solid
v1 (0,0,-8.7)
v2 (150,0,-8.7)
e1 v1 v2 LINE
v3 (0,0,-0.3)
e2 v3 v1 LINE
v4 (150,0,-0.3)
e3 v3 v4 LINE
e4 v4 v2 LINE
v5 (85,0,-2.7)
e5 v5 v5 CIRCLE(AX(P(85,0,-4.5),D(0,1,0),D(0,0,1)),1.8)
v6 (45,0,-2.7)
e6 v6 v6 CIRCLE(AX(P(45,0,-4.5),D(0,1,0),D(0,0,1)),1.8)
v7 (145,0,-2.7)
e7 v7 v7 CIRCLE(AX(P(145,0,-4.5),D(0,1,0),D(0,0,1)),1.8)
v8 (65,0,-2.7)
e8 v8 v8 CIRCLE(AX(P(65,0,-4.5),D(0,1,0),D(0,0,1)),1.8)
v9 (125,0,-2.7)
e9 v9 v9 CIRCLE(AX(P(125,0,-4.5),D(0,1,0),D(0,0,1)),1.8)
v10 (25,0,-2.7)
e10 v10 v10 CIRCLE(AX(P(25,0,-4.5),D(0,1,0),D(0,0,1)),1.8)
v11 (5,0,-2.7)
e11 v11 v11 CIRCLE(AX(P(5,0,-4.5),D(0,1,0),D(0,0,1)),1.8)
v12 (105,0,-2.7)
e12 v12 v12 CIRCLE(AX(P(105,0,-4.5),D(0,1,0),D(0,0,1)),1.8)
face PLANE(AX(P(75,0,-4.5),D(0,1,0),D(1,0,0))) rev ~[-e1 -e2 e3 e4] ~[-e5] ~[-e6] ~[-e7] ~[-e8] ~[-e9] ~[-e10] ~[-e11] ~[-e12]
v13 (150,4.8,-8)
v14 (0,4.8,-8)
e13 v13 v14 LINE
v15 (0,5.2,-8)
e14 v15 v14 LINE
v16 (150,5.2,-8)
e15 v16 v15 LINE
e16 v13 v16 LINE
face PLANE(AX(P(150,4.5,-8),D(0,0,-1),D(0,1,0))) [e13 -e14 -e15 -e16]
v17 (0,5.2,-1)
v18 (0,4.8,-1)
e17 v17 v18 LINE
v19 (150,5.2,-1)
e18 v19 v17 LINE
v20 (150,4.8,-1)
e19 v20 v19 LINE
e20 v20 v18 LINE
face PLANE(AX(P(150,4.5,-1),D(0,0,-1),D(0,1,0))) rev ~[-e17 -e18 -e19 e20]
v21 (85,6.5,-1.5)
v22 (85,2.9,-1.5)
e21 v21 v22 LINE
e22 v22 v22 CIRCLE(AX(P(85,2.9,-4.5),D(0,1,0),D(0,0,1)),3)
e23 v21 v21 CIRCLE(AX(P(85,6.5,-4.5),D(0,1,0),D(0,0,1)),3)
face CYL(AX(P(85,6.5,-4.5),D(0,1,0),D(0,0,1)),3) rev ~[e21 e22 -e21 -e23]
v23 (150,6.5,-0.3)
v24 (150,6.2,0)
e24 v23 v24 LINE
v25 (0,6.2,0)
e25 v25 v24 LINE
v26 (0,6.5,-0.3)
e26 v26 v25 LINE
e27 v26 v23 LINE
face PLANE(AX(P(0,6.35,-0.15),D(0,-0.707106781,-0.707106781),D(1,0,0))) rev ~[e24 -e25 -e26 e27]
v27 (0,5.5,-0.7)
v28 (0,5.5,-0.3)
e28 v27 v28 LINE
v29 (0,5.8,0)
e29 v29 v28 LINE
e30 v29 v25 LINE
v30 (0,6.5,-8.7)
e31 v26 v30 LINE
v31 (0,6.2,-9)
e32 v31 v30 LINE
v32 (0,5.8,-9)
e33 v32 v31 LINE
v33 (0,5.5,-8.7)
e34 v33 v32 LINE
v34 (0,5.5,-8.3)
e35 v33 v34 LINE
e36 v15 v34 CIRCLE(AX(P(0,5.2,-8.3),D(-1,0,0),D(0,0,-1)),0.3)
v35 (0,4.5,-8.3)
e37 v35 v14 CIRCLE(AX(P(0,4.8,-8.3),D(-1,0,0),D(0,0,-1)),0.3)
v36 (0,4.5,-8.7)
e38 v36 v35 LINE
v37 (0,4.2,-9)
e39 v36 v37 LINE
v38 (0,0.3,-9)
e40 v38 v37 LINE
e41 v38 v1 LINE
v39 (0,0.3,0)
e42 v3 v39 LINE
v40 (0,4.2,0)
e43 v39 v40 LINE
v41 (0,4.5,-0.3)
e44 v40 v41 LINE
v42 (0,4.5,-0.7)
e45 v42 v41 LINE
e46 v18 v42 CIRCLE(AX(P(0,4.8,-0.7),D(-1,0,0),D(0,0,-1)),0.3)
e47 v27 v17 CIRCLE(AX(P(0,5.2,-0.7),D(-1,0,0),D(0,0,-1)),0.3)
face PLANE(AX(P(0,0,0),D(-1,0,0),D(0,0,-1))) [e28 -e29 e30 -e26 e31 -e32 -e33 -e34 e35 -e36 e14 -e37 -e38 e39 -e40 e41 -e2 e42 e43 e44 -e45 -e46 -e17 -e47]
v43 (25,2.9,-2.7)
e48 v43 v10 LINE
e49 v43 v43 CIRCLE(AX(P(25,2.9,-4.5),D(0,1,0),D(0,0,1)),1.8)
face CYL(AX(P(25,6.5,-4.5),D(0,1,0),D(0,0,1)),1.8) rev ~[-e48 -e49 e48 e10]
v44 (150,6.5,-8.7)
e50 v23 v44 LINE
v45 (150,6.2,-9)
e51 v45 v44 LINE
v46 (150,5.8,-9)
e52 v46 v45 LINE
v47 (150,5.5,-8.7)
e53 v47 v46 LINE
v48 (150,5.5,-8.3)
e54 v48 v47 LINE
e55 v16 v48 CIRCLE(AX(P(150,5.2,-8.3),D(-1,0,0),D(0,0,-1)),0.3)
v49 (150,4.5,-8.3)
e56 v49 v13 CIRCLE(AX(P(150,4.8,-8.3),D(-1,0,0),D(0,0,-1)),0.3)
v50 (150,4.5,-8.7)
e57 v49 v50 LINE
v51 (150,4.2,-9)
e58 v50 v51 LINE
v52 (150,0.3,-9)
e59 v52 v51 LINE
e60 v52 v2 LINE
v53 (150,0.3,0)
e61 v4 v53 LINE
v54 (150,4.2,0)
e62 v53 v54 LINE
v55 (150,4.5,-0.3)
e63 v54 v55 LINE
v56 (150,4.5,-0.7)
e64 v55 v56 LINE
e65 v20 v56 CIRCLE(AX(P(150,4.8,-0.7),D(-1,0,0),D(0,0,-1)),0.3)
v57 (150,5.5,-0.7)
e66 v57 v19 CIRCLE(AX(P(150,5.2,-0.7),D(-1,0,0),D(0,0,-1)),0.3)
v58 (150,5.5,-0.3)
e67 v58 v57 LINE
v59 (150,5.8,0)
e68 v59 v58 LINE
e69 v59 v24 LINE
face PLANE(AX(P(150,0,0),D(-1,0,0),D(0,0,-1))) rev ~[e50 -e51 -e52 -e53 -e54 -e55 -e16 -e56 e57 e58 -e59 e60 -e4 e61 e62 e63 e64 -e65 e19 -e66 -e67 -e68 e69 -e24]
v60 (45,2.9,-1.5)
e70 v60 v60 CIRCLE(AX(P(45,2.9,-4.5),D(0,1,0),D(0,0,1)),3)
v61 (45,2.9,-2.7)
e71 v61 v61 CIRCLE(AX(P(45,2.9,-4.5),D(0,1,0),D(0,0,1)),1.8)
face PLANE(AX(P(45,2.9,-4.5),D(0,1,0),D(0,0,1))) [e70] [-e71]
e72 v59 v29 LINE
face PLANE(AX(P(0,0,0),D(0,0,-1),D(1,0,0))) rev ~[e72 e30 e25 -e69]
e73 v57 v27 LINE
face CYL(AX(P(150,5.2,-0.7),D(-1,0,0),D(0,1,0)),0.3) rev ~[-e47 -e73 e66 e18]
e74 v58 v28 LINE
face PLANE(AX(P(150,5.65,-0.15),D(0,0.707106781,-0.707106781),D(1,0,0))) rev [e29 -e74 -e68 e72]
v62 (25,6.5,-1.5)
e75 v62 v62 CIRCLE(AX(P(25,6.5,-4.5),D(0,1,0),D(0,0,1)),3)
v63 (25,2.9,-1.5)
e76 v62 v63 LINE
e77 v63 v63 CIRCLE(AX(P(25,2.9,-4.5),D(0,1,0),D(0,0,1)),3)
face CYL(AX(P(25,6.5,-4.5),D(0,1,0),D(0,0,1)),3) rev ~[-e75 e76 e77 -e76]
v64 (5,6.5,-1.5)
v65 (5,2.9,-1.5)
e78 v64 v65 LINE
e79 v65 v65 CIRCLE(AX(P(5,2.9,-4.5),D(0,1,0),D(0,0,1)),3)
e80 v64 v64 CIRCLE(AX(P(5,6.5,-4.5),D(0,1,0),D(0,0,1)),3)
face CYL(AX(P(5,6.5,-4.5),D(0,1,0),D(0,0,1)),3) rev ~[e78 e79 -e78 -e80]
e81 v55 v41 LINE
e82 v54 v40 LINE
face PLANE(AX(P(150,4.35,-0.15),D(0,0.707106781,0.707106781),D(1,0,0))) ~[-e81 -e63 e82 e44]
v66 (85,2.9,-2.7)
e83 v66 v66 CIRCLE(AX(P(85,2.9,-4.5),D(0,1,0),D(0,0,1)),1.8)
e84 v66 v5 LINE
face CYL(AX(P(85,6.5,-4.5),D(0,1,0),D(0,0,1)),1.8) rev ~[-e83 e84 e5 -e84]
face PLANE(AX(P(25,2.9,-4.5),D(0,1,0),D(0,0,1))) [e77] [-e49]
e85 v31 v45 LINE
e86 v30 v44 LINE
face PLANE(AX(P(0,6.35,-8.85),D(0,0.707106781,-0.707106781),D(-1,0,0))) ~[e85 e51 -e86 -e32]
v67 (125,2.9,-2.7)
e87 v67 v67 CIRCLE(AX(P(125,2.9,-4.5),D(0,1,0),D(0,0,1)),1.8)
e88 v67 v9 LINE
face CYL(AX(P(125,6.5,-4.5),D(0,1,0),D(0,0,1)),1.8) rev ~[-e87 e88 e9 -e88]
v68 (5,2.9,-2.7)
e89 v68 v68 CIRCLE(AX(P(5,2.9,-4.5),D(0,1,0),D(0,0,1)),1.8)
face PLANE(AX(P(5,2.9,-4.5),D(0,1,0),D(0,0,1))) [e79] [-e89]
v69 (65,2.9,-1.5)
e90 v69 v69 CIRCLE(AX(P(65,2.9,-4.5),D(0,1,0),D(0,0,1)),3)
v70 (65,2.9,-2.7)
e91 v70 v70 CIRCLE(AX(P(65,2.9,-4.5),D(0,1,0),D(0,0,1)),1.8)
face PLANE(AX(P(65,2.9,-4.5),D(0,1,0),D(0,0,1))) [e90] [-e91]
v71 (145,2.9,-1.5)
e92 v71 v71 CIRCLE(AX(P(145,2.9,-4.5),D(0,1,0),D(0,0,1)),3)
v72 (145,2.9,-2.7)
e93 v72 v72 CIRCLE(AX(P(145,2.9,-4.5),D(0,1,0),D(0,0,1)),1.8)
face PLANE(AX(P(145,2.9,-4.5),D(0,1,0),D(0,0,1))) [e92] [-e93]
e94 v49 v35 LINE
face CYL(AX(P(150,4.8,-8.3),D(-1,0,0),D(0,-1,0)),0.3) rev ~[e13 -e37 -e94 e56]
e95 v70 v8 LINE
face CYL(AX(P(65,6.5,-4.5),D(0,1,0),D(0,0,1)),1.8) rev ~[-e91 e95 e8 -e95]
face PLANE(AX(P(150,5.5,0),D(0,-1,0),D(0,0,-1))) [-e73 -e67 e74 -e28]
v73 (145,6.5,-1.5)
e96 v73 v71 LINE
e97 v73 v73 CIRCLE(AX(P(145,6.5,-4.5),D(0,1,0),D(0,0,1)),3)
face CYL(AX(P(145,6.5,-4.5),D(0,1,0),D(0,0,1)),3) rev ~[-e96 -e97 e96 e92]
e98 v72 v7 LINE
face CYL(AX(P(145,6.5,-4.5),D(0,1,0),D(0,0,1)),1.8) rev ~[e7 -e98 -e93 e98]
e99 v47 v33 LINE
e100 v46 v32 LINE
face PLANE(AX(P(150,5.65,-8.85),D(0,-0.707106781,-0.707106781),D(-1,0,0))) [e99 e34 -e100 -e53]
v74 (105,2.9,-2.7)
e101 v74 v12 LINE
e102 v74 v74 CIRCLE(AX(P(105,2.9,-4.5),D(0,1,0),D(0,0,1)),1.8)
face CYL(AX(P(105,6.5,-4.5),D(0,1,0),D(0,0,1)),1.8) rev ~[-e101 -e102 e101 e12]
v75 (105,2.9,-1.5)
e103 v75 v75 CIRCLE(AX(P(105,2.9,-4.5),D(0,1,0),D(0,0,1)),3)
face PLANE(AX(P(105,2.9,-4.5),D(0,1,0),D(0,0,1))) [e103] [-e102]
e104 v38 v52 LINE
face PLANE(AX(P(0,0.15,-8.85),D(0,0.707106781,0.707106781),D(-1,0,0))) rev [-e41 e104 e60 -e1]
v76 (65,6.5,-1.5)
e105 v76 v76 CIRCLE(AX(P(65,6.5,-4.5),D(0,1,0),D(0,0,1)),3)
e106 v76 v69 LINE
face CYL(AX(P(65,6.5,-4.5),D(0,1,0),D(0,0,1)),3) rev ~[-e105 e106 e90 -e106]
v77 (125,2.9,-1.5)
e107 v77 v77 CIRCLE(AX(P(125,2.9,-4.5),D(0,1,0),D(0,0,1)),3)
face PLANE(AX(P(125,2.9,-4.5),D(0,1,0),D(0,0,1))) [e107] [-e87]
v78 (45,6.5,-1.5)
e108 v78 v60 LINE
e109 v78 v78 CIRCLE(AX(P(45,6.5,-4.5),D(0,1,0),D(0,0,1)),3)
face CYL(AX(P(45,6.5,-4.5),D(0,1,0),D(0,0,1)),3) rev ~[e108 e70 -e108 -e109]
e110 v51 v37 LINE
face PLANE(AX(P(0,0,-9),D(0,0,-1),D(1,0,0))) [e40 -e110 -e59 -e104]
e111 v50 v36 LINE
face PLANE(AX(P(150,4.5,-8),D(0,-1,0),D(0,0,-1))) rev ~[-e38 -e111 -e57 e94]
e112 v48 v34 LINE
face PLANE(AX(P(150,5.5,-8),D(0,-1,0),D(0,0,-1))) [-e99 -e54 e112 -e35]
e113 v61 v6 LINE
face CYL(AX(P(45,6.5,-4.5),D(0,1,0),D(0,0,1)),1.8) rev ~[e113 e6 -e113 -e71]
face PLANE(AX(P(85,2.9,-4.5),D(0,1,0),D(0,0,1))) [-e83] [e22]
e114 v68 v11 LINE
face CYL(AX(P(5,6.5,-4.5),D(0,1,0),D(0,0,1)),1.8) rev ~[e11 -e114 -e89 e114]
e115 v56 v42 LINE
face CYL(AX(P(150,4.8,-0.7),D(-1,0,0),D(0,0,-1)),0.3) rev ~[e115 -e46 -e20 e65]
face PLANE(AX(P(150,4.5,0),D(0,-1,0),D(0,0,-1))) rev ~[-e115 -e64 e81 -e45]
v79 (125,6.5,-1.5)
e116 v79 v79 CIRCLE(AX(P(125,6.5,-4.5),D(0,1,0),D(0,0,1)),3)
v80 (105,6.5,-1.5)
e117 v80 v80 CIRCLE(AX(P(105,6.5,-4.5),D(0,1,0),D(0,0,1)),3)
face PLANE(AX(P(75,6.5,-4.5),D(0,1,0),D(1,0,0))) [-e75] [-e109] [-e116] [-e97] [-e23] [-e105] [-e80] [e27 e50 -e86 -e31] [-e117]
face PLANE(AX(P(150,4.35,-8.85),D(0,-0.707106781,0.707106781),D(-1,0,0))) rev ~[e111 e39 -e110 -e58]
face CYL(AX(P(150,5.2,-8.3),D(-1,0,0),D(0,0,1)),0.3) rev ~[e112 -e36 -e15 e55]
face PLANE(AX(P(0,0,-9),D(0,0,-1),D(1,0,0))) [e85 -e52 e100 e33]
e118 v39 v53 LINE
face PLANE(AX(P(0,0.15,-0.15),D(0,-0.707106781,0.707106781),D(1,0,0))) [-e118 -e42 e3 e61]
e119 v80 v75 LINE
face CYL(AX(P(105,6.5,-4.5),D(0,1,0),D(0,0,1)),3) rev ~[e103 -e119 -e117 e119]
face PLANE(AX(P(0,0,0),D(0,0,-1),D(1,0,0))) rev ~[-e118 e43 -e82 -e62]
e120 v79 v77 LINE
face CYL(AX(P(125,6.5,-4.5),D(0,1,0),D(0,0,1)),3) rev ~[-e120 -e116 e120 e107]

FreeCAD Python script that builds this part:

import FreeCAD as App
import Part
import Sketcher
Q = App.Units.Quantity


def edges_at(feature, points):
    """Names of the edges that pass closest to the given points."""
    edges = feature.Shape.Edges
    near = lambda p: min(range(len(edges)), key=lambda i: edges[i].distToShape(Part.Vertex(*p))[0])
    return sorted({f"Edge{near(p) + 1}" for p in points})


def add_polygon(sketch, points):
    """Adds a closed chain of lines whose ends are joined by coincident constraints."""
    first, n = sketch.GeometryCount, len(points)
    for a, b in zip(points, points[1:] + points[:1]):
        sketch.addGeometry(Part.LineSegment(App.Vector(*a, 0), App.Vector(*b, 0)), False)
    for i in range(n):
        sketch.addConstraint(Sketcher.Constraint("Coincident", first + i, 2, first + (i + 1) % n, 1))

doc = App.newDocument("Part")
params = doc.addObject("Spreadsheet::Sheet", "Params")
for row, (alias, value) in enumerate([
    ("sketch1_width", "150 mm"),
    ("sketch1_height", "9 mm"),
    ("pad1_length", "6.5 mm"),
    ("sketch2_width", "1 mm"),
    ("pocket1_length", "156.5 mm"),
    ("sketch3_diameter", "3.6 mm"),
    ("pocket2_length", "9.5 mm"),
    ("sketch4_diameter", "6 mm"),
    ("pocket3_length", "3.6 mm"),
    ("fillet_radius", "0.3 mm"),
    ("chamfer_size", "0.3 mm"),
], start=1):
    params.set(f"A{row}", alias)
    params.set(f"B{row}", "=" + value)
    params.setAlias(f"B{row}", alias)

body = doc.addObject("PartDesign::Body", "Body")

# Sketch on XZ plane
sketch1 = body.newObject("Sketcher::SketchObject", "Sketch")
sketch1.AttachmentSupport = (doc.getObject("XZ_Plane"), [""])
sketch1.MapMode = "FlatFace"
add_polygon(sketch1, [(0, -9), (0, 0), (150, 0), (150, -9)])  # lines 0-3
sketch1.addConstraint(Sketcher.Constraint("Vertical", 0))
sketch1.addConstraint(Sketcher.Constraint("Horizontal", 1))
sketch1.addConstraint(Sketcher.Constraint("Vertical", 2))
sketch1.addConstraint(Sketcher.Constraint("Horizontal", 3))
sketch1.addConstraint(Sketcher.Constraint("Coincident", 0, 2, -1, 1))
sketch1.addConstraint(Sketcher.Constraint("DistanceX", 1, 1, 1, 2, Q("150 mm")))
sketch1.addConstraint(Sketcher.Constraint("DistanceY", 0, 1, 0, 2, Q("9 mm")))
sketch1.setExpression("Constraints[9]", "Params.sketch1_width")
sketch1.setExpression("Constraints[10]", "Params.sketch1_height")
pad1 = body.newObject("PartDesign::Pad", "Pad")
pad1.Profile = sketch1
pad1.setExpression("Length", "Params.pad1_length")
pad1.Reversed = True

# Sketch on YZ plane
sketch2 = body.newObject("Sketcher::SketchObject", "Sketch001")
sketch2.AttachmentSupport = (doc.getObject("YZ_Plane"), [""])
sketch2.MapMode = "FlatFace"
sketch2.AttachmentOffset = App.Placement(App.Vector(0, 0, 150), App.Rotation())
add_polygon(sketch2, [(5.5, 0), (4.5, 0), (4.5, -1), (5.5, -1)])  # lines 0-3
add_polygon(sketch2, [(5.5, -8), (4.5, -8), (4.5, -9), (5.5, -9)])  # lines 4-7
sketch2.addConstraint(Sketcher.Constraint("Horizontal", 0))
sketch2.addConstraint(Sketcher.Constraint("Vertical", 1))
sketch2.addConstraint(Sketcher.Constraint("Horizontal", 2))
sketch2.addConstraint(Sketcher.Constraint("Vertical", 3))
sketch2.addConstraint(Sketcher.Constraint("Horizontal", 4))
sketch2.addConstraint(Sketcher.Constraint("Vertical", 5))
sketch2.addConstraint(Sketcher.Constraint("Horizontal", 6))
sketch2.addConstraint(Sketcher.Constraint("Vertical", 7))
sketch2.addConstraint(Sketcher.Constraint("PointOnObject", 0, 2, -1))
sketch2.addConstraint(Sketcher.Constraint("Vertical", 1, 2, 4, 2))
sketch2.addConstraint(Sketcher.Constraint("Vertical", 3, 2, 6, 2))
sketch2.addConstraint(Sketcher.Constraint("Equal", 6, 1))
sketch2.addConstraint(Sketcher.Constraint("Equal", 3, 5))
sketch2.addConstraint(Sketcher.Constraint("DistanceX", 0, 2, 0, 1, Q("1 mm")))
sketch2.addConstraint(Sketcher.Constraint("DistanceY", 4, 2, -1, 1, Q("8 mm")))
sketch2.addConstraint(Sketcher.Constraint("DistanceX", -1, 1, 0, 2, Q("4.5 mm")))
sketch2.setExpression("Constraints[21]", "Params.sketch2_width")
pocket1 = body.newObject("PartDesign::Pocket", "Pocket")
pocket1.Profile = sketch2
pocket1.setExpression("Length", "Params.pocket1_length")

# Sketch on XZ plane
sketch3 = body.newObject("Sketcher::SketchObject", "Sketch002")
sketch3.AttachmentSupport = (doc.getObject("XZ_Plane"), [""])
sketch3.MapMode = "FlatFace"
sketch3.AttachmentOffset = App.Placement(App.Vector(0, 0, -6.5), App.Rotation())
sketch3.addGeometry(Part.Circle(App.Vector(5, -4.5, 0), App.Vector(0, 0, 1), 1.8), False)
sketch3.addGeometry(Part.Circle(App.Vector(25, -4.5, 0), App.Vector(0, 0, 1), 1.8), False)
sketch3.addGeometry(Part.Circle(App.Vector(45, -4.5, 0), App.Vector(0, 0, 1), 1.8), False)
sketch3.addGeometry(Part.Circle(App.Vector(65, -4.5, 0), App.Vector(0, 0, 1), 1.8), False)
sketch3.addGeometry(Part.Circle(App.Vector(85, -4.5, 0), App.Vector(0, 0, 1), 1.8), False)
sketch3.addGeometry(Part.Circle(App.Vector(105, -4.5, 0), App.Vector(0, 0, 1), 1.8), False)
sketch3.addGeometry(Part.Circle(App.Vector(125, -4.5, 0), App.Vector(0, 0, 1), 1.8), False)
sketch3.addGeometry(Part.Circle(App.Vector(145, -4.5, 0), App.Vector(0, 0, 1), 1.8), False)
sketch3.addConstraint(Sketcher.Constraint("Equal", 0, 1))
sketch3.addConstraint(Sketcher.Constraint("Equal", 1, 2))
sketch3.addConstraint(Sketcher.Constraint("Equal", 2, 3))
sketch3.addConstraint(Sketcher.Constraint("Equal", 3, 4))
sketch3.addConstraint(Sketcher.Constraint("Equal", 4, 5))
sketch3.addConstraint(Sketcher.Constraint("Equal", 5, 6))
sketch3.addConstraint(Sketcher.Constraint("Equal", 6, 7))
sketch3.addConstraint(Sketcher.Constraint("Horizontal", 0, 3, 1, 3))
sketch3.addConstraint(Sketcher.Constraint("Horizontal", 1, 3, 2, 3))
sketch3.addConstraint(Sketcher.Constraint("Horizontal", 2, 3, 3, 3))
sketch3.addConstraint(Sketcher.Constraint("Horizontal", 3, 3, 4, 3))
sketch3.addConstraint(Sketcher.Constraint("Horizontal", 4, 3, 5, 3))
sketch3.addConstraint(Sketcher.Constraint("Horizontal", 5, 3, 6, 3))
sketch3.addConstraint(Sketcher.Constraint("Horizontal", 6, 3, 7, 3))
sketch3.addConstraint(Sketcher.Constraint("Diameter", 0, Q("3.6 mm")))
sketch3.addConstraint(Sketcher.Constraint("DistanceX", -1, 1, 0, 3, Q("5 mm")))
sketch3.addConstraint(Sketcher.Constraint("DistanceX", -1, 1, 1, 3, Q("25 mm")))
sketch3.addConstraint(Sketcher.Constraint("DistanceX", -1, 1, 2, 3, Q("45 mm")))
sketch3.addConstraint(Sketcher.Constraint("DistanceX", -1, 1, 3, 3, Q("65 mm")))
sketch3.addConstraint(Sketcher.Constraint("DistanceX", -1, 1, 4, 3, Q("85 mm")))
sketch3.addConstraint(Sketcher.Constraint("DistanceX", -1, 1, 5, 3, Q("105 mm")))
sketch3.addConstraint(Sketcher.Constraint("DistanceX", -1, 1, 6, 3, Q("125 mm")))
sketch3.addConstraint(Sketcher.Constraint("DistanceX", -1, 1, 7, 3, Q("145 mm")))
sketch3.addConstraint(Sketcher.Constraint("DistanceY", 0, 3, -1, 1, Q("4.5 mm")))
sketch3.setExpression("Constraints[14]", "Params.sketch3_diameter")
pocket2 = body.newObject("PartDesign::Pocket", "Pocket001")
pocket2.Profile = sketch3
pocket2.setExpression("Length", "Params.pocket2_length")
pocket2.Reversed = True

# Sketch on XZ plane
sketch4 = body.newObject("Sketcher::SketchObject", "Sketch003")
sketch4.AttachmentSupport = (doc.getObject("XZ_Plane"), [""])
sketch4.MapMode = "FlatFace"
sketch4.AttachmentOffset = App.Placement(App.Vector(0, 0, -6.5), App.Rotation())
sketch4.addGeometry(Part.Circle(App.Vector(5, -4.5, 0), App.Vector(0, 0, 1), 3), False)
sketch4.addGeometry(Part.Circle(App.Vector(25, -4.5, 0), App.Vector(0, 0, 1), 3), False)
sketch4.addGeometry(Part.Circle(App.Vector(45, -4.5, 0), App.Vector(0, 0, 1), 3), False)
sketch4.addGeometry(Part.Circle(App.Vector(65, -4.5, 0), App.Vector(0, 0, 1), 3), False)
sketch4.addGeometry(Part.Circle(App.Vector(85, -4.5, 0), App.Vector(0, 0, 1), 3), False)
sketch4.addGeometry(Part.Circle(App.Vector(105, -4.5, 0), App.Vector(0, 0, 1), 3), False)
sketch4.addGeometry(Part.Circle(App.Vector(125, -4.5, 0), App.Vector(0, 0, 1), 3), False)
sketch4.addGeometry(Part.Circle(App.Vector(145, -4.5, 0), App.Vector(0, 0, 1), 3), False)
sketch4.addConstraint(Sketcher.Constraint("Equal", 0, 1))
sketch4.addConstraint(Sketcher.Constraint("Equal", 1, 2))
sketch4.addConstraint(Sketcher.Constraint("Equal", 2, 3))
sketch4.addConstraint(Sketcher.Constraint("Equal", 3, 4))
sketch4.addConstraint(Sketcher.Constraint("Equal", 4, 5))
sketch4.addConstraint(Sketcher.Constraint("Equal", 5, 6))
sketch4.addConstraint(Sketcher.Constraint("Equal", 6, 7))
sketch4.addConstraint(Sketcher.Constraint("Horizontal", 0, 3, 1, 3))
sketch4.addConstraint(Sketcher.Constraint("Horizontal", 1, 3, 2, 3))
sketch4.addConstraint(Sketcher.Constraint("Horizontal", 2, 3, 3, 3))
sketch4.addConstraint(Sketcher.Constraint("Horizontal", 3, 3, 4, 3))
sketch4.addConstraint(Sketcher.Constraint("Horizontal", 4, 3, 5, 3))
sketch4.addConstraint(Sketcher.Constraint("Horizontal", 5, 3, 6, 3))
sketch4.addConstraint(Sketcher.Constraint("Horizontal", 6, 3, 7, 3))
sketch4.addConstraint(Sketcher.Constraint("Diameter", 0, Q("6 mm")))
sketch4.addConstraint(Sketcher.Constraint("DistanceX", -1, 1, 0, 3, Q("5 mm")))
sketch4.addConstraint(Sketcher.Constraint("DistanceX", -1, 1, 1, 3, Q("25 mm")))
sketch4.addConstraint(Sketcher.Constraint("DistanceX", -1, 1, 2, 3, Q("45 mm")))
sketch4.addConstraint(Sketcher.Constraint("DistanceX", -1, 1, 3, 3, Q("65 mm")))
sketch4.addConstraint(Sketcher.Constraint("DistanceX", -1, 1, 4, 3, Q("85 mm")))
sketch4.addConstraint(Sketcher.Constraint("DistanceX", -1, 1, 5, 3, Q("105 mm")))
sketch4.addConstraint(Sketcher.Constraint("DistanceX", -1, 1, 6, 3, Q("125 mm")))
sketch4.addConstraint(Sketcher.Constraint("DistanceX", -1, 1, 7, 3, Q("145 mm")))
sketch4.addConstraint(Sketcher.Constraint("DistanceY", 0, 3, -1, 1, Q("4.5 mm")))
sketch4.setExpression("Constraints[14]", "Params.sketch4_diameter")
pocket3 = body.newObject("PartDesign::Pocket", "Pocket002")
pocket3.Profile = sketch4
pocket3.setExpression("Length", "Params.pocket3_length")
pocket3.Reversed = True
doc.recompute()

fillet = body.newObject("PartDesign::Fillet", "Fillet")
fillet.Base = (pocket3, edges_at(pocket3, [
    (75, 5.5, -1),
    (75, 4.5, -1),
    (75, 4.5, -8),
    (75, 5.5, -8),
]))
fillet.setExpression("Radius", "Params.fillet_radius")
doc.recompute()

chamfer = body.newObject("PartDesign::Chamfer", "Chamfer")
chamfer.Base = (fillet, edges_at(fillet, [
    (75, 5.5, -9),
    (75, 4.5, -9),
    (75, 6.5, -9),
    (75, 4.5, 0),
    (75, 5.5, 0),
    (75, 0, -9),
    (75, 0, 0),
    (75, 6.5, 0),
]))
chamfer.setExpression("Size", "Params.chamfer_size")

doc.recompute()
